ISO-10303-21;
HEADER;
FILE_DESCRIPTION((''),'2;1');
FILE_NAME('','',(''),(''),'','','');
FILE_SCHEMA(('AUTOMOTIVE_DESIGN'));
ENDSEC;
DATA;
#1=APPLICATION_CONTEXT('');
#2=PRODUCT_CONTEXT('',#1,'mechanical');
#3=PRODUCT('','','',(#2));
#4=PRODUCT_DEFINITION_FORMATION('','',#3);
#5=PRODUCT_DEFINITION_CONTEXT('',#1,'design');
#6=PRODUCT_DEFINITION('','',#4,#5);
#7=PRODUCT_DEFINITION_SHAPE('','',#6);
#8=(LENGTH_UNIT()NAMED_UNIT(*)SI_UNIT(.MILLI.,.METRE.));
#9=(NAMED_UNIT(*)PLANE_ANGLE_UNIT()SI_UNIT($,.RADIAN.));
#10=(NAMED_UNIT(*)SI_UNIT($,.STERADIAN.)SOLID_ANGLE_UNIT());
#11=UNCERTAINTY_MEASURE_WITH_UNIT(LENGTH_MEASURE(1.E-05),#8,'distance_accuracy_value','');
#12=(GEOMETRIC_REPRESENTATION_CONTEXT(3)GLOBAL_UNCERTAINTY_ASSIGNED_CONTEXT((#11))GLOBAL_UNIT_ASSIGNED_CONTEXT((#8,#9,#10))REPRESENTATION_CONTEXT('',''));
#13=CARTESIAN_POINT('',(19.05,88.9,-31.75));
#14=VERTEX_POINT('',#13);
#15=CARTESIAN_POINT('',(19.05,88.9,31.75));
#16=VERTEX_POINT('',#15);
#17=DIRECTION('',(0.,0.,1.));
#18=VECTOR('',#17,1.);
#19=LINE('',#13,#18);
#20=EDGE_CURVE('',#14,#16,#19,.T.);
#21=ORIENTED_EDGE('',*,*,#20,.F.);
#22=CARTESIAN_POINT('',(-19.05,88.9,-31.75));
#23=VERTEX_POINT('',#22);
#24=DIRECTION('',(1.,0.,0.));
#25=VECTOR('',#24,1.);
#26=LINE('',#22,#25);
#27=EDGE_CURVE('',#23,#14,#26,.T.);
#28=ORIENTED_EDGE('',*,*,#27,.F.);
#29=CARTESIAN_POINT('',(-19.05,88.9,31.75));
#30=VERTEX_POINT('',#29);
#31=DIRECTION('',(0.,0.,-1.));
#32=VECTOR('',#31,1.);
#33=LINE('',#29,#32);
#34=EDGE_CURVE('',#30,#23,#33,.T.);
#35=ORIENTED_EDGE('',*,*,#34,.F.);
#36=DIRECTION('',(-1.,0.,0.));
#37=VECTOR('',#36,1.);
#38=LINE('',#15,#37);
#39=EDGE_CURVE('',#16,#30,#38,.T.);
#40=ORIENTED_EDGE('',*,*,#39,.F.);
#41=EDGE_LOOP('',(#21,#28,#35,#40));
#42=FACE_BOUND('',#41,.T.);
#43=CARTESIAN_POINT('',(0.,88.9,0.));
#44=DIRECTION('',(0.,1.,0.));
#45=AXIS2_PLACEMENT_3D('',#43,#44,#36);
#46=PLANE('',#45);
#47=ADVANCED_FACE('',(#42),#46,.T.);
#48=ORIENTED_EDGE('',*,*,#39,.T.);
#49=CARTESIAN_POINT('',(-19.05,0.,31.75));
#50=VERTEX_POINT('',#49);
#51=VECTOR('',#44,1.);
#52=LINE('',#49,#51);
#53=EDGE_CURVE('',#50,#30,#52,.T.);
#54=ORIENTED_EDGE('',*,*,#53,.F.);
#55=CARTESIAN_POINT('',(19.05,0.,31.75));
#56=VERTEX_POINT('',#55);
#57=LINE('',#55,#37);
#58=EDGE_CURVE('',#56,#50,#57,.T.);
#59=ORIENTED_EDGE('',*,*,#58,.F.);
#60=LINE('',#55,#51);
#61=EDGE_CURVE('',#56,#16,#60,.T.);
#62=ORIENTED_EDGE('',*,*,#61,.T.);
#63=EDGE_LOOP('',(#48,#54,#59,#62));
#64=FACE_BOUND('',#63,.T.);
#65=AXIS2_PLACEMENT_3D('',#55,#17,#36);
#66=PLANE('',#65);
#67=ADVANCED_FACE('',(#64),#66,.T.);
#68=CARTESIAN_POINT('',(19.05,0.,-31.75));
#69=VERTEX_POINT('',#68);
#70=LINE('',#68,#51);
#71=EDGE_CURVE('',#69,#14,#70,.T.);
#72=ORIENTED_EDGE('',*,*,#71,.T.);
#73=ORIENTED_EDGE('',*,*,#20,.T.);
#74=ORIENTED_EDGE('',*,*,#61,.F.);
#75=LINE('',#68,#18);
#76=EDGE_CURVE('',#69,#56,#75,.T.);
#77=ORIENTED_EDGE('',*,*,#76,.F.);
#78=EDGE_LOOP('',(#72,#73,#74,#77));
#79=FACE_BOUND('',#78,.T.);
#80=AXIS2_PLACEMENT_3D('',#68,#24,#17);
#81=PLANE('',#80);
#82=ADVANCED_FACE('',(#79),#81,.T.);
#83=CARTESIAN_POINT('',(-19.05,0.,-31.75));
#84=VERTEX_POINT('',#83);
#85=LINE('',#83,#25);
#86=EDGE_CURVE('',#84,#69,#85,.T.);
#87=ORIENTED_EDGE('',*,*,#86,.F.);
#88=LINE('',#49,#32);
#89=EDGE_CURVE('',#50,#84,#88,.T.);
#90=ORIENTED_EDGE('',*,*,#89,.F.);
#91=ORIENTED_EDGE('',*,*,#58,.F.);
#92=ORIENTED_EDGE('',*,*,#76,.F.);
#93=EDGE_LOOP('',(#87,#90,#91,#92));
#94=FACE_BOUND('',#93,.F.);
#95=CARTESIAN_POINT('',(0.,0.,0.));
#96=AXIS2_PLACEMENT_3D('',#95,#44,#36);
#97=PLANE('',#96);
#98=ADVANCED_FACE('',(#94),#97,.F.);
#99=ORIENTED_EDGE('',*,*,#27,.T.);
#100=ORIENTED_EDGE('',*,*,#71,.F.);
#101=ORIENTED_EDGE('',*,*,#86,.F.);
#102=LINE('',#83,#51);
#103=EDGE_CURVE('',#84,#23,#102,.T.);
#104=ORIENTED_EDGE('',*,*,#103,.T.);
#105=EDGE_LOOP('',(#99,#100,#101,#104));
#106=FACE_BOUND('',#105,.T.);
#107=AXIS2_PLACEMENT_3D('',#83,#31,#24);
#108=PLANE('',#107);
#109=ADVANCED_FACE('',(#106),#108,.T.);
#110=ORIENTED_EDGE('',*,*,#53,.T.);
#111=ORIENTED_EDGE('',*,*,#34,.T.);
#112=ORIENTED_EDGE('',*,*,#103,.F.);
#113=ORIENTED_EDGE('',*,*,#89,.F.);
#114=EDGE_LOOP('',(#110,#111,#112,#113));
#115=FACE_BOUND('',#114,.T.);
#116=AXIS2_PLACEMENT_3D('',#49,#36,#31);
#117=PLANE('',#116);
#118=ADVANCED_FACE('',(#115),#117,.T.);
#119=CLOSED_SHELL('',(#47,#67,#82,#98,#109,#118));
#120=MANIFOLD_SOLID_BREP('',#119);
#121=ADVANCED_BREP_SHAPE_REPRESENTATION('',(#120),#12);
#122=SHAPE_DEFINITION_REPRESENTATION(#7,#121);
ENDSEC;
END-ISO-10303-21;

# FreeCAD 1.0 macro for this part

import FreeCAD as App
import Part
import Sketcher
Q = App.Units.Quantity


def add_polygon(sketch, points):
    """Adds a closed chain of lines whose ends are joined by coincident constraints."""
    first, n = sketch.GeometryCount, len(points)
    for a, b in zip(points, points[1:] + points[:1]):
        sketch.addGeometry(Part.LineSegment(App.Vector(*a, 0), App.Vector(*b, 0)), False)
    for i in range(n):
        sketch.addConstraint(Sketcher.Constraint("Coincident", first + i, 2, first + (i + 1) % n, 1))

doc = App.newDocument("Part")
body = doc.addObject("PartDesign::Body", "Body")

# Sketch on XZ plane
sketch1 = body.newObject("Sketcher::SketchObject", "Sketch")
sketch1.AttachmentSupport = (doc.getObject("XZ_Plane"), [""])
sketch1.MapMode = "FlatFace"
add_polygon(sketch1, [(-19, 32), (19, 32), (19, -32), (-19, -32)])  # lines 0-3
sketch1.addConstraint([
    Sketcher.Constraint("Horizontal", 0),
    Sketcher.Constraint("Vertical", 1),
    Sketcher.Constraint("Horizontal", 2),
    Sketcher.Constraint("Vertical", 3),
    Sketcher.Constraint("Symmetric", 0, 2, 2, 2, -1, 1),
    Sketcher.Constraint("DistanceX", 0, 1, 0, 2, Q("1.5 in")),
    Sketcher.Constraint("DistanceY", 1, 2, 1, 1, Q("2.5 in")),
])
pad1 = body.newObject("PartDesign::Pad", "Pad")
pad1.Profile = sketch1
pad1.Length = Q("3.5 in")
pad1.Reversed = True

doc.recompute()
